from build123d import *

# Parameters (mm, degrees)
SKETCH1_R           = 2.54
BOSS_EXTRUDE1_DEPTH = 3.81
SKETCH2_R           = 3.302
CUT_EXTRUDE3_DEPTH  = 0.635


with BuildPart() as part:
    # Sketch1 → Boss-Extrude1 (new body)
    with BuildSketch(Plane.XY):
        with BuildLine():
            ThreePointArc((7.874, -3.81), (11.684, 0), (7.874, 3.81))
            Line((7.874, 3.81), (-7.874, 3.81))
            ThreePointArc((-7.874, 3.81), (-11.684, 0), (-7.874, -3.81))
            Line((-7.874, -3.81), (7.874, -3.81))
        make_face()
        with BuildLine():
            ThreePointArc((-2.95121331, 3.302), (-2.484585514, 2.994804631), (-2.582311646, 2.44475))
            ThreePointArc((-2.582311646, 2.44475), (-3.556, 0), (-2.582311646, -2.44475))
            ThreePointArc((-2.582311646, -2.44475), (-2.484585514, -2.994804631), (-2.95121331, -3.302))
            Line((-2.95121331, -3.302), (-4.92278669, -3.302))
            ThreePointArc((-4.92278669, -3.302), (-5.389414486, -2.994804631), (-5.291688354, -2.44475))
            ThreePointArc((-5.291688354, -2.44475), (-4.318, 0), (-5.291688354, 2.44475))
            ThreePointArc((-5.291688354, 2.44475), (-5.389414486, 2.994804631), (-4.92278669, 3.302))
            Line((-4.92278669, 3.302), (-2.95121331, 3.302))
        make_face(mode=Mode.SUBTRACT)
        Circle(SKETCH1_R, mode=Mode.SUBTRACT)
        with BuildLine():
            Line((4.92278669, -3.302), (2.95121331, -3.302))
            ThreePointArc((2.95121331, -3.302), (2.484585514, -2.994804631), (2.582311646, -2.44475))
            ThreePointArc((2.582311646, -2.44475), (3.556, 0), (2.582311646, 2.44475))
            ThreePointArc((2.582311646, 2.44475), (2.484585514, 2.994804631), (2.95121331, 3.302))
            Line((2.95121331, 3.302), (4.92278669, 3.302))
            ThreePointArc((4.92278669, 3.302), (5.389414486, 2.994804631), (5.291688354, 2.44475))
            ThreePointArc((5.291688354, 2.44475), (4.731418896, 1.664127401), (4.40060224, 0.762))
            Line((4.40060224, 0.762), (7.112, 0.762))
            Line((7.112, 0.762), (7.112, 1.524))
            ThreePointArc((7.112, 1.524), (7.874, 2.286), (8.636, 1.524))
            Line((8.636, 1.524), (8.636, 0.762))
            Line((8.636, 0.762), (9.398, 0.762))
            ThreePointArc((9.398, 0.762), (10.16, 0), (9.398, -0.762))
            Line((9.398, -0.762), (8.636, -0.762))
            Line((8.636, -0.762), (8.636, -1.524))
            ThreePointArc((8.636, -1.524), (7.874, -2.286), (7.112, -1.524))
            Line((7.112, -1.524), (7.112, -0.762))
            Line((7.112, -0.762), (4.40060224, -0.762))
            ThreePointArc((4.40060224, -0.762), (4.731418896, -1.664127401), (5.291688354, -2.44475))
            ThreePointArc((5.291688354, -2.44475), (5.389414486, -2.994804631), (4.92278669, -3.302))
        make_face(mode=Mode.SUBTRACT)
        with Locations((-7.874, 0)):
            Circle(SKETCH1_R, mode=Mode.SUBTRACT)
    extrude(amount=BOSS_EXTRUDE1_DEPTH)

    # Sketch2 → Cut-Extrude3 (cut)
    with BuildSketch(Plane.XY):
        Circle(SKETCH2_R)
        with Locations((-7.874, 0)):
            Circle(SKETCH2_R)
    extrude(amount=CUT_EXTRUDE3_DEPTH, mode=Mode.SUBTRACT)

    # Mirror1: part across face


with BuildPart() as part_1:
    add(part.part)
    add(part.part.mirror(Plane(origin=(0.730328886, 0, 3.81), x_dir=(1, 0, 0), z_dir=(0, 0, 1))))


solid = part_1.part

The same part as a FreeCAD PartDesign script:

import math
import FreeCAD as App
import Part
import Sketcher
from FreeCAD import Vector
Q = App.Units.Quantity

doc = App.newDocument("Part")
params = doc.addObject("Spreadsheet::Sheet", "Params")
for row, (alias, value) in enumerate([
    ("sketch1_diameter", "0.2 in"),
    ("sketch1_radius", "0.15 in"),
    ("sketch1_radius2", "0.02 in"),
    ("sketch1_radius3", "0.14 in"),
    ("sketch1_radius4", "0.03 in"),
    ("pad1_length", "0.15 in"),
    ("sketch2_diameter", "0.26 in"),
    ("pocket1_length", "0.025 in"),
], start=1):
    params.set(f"A{row}", alias)
    params.set(f"B{row}", "=" + value)
    params.setAlias(f"B{row}", alias)

body = doc.addObject("PartDesign::Body", "Body")

sketch1 = body.newObject("Sketcher::SketchObject", "Sketch")
sketch1.AttachmentSupport = (doc.getObject("XY_Plane"), [""])
sketch1.MapMode = "FlatFace"
sketch1.addGeometry([
    Part.ArcOfCircle(Part.Circle(Vector(7.9, 0, 0), Vector(0, 0, 1), 3.8), math.radians(-90), math.radians(90)),
    Part.LineSegment(Vector(7.9, 3.8, 0), Vector(-7.9, 3.8, 0)),
    Part.ArcOfCircle(Part.Circle(Vector(-7.9, 0, 0), Vector(0, 0, 1), 3.8), math.radians(90), math.radians(270)),
    Part.LineSegment(Vector(-7.9, -3.8, 0), Vector(7.9, -3.8, 0)),
    Part.Circle(Vector(-7.9, 0, 0), Vector(0, 0, 1), 2.5),
    Part.LineSegment(Vector(-4.9, 3.3, 0), Vector(-3, 3.3, 0)),
    Part.ArcOfCircle(Part.Circle(Vector(-3, 2.8, 0), Vector(0, 0, 1), 0.5), math.radians(-43), math.radians(90)),
    Part.ArcOfCircle(Part.Circle(Vector(0, 0, 0), Vector(0, 0, 1), 3.6), math.radians(137), math.radians(223)),
    Part.ArcOfCircle(Part.Circle(Vector(-3, -2.8, 0), Vector(0, 0, 1), 0.5), math.radians(-90), math.radians(43)),
    Part.LineSegment(Vector(-3, -3.3, 0), Vector(-4.9, -3.3, 0)),
    Part.ArcOfCircle(Part.Circle(Vector(-4.9, -2.8, 0), Vector(0, 0, 1), 0.5), math.radians(137), math.radians(270)),
    Part.ArcOfCircle(Part.Circle(Vector(-7.9, 0, 0), Vector(0, 0, 1), 3.6), math.radians(-43), math.radians(43)),
    Part.ArcOfCircle(Part.Circle(Vector(-4.9, 2.8, 0), Vector(0, 0, 1), 0.5), math.radians(90), math.radians(223)),
    Part.Circle(Vector(0, 0, 0), Vector(0, 0, 1), 2.5),
    Part.ArcOfCircle(Part.Circle(Vector(4.9, -2.8, 0), Vector(0, 0, 1), 0.5), math.radians(-90), math.radians(43)),
    Part.LineSegment(Vector(4.9, -3.3, 0), Vector(3, -3.3, 0)),
    Part.ArcOfCircle(Part.Circle(Vector(3, -2.8, 0), Vector(0, 0, 1), 0.5), math.radians(137), math.radians(270)),
    Part.ArcOfCircle(Part.Circle(Vector(0, 0, 0), Vector(0, 0, 1), 3.6), math.radians(-43), math.radians(43)),
    Part.ArcOfCircle(Part.Circle(Vector(3, 2.8, 0), Vector(0, 0, 1), 0.5), math.radians(90), math.radians(223)),
    Part.LineSegment(Vector(3, 3.3, 0), Vector(4.9, 3.3, 0)),
    Part.ArcOfCircle(Part.Circle(Vector(4.9, 2.8, 0), Vector(0, 0, 1), 0.5), math.radians(-43), math.radians(90)),
    Part.ArcOfCircle(Part.Circle(Vector(7.9, 0, 0), Vector(0, 0, 1), 3.6), math.radians(137), math.radians(168)),
    Part.LineSegment(Vector(4.4, 0.8, 0), Vector(7.1, 0.8, 0)),
    Part.LineSegment(Vector(7.1, 0.8, 0), Vector(7.1, 1.5, 0)),
    Part.ArcOfCircle(Part.Circle(Vector(7.9, 1.5, 0), Vector(0, 0, 1), 0.8), math.radians(0), math.radians(180)),
    Part.LineSegment(Vector(8.6, 1.5, 0), Vector(8.6, 0.8, 0)),
    Part.LineSegment(Vector(8.6, 0.8, 0), Vector(9.4, 0.8, 0)),
    Part.ArcOfCircle(Part.Circle(Vector(9.4, 0, 0), Vector(0, 0, 1), 0.8), math.radians(-90), math.radians(90)),
    Part.LineSegment(Vector(9.4, -0.8, 0), Vector(8.6, -0.8, 0)),
    Part.LineSegment(Vector(8.6, -0.8, 0), Vector(8.6, -1.5, 0)),
    Part.ArcOfCircle(Part.Circle(Vector(7.9, -1.5, 0), Vector(0, 0, 1), 0.8), math.radians(180), math.radians(360)),
    Part.LineSegment(Vector(7.1, -1.5, 0), Vector(7.1, -0.8, 0)),
    Part.LineSegment(Vector(7.1, -0.8, 0), Vector(4.4, -0.8, 0)),
    Part.ArcOfCircle(Part.Circle(Vector(7.9, 0, 0), Vector(0, 0, 1), 3.6), math.radians(-168), math.radians(-137)),
], False)
sketch1.addConstraint([
    Sketcher.Constraint("Tangent", 0, 2, 1, 1),
    Sketcher.Constraint("Tangent", 1, 2, 2, 1),
    Sketcher.Constraint("Tangent", 2, 2, 3, 1),
    Sketcher.Constraint("Tangent", 3, 2, 0, 1),
    Sketcher.Constraint("Tangent", 5, 2, 6, 2),
    Sketcher.Constraint("Tangent", 6, 1, 7, 1),
    Sketcher.Constraint("Tangent", 7, 2, 8, 2),
    Sketcher.Constraint("Tangent", 8, 1, 9, 1),
    Sketcher.Constraint("Tangent", 9, 2, 10, 2),
    Sketcher.Constraint("Tangent", 10, 1, 11, 1),
    Sketcher.Constraint("Tangent", 11, 2, 12, 2),
    Sketcher.Constraint("Tangent", 12, 1, 5, 1),
    Sketcher.Constraint("Tangent", 14, 1, 15, 1),
    Sketcher.Constraint("Tangent", 15, 2, 16, 2),
    Sketcher.Constraint("Tangent", 16, 1, 17, 1),
    Sketcher.Constraint("Tangent", 17, 2, 18, 2),
    Sketcher.Constraint("Tangent", 18, 1, 19, 1),
    Sketcher.Constraint("Tangent", 19, 2, 20, 2),
    Sketcher.Constraint("Tangent", 20, 1, 21, 1),
    Sketcher.Constraint("Coincident", 21, 2, 22, 1),
    Sketcher.Constraint("Coincident", 22, 2, 23, 1),
    Sketcher.Constraint("Tangent", 23, 2, 24, 2),
    Sketcher.Constraint("Tangent", 24, 1, 25, 1),
    Sketcher.Constraint("Coincident", 25, 2, 26, 1),
    Sketcher.Constraint("Tangent", 26, 2, 27, 2),
    Sketcher.Constraint("Tangent", 27, 1, 28, 1),
    Sketcher.Constraint("Coincident", 28, 2, 29, 1),
    Sketcher.Constraint("Tangent", 29, 2, 30, 2),
    Sketcher.Constraint("Tangent", 30, 1, 31, 1),
    Sketcher.Constraint("Coincident", 31, 2, 32, 1),
    Sketcher.Constraint("Coincident", 32, 2, 33, 1),
    Sketcher.Constraint("Tangent", 33, 2, 14, 2),
    Sketcher.Constraint("Horizontal", 1),
    Sketcher.Constraint("Horizontal", 3),
    Sketcher.Constraint("Horizontal", 5),
    Sketcher.Constraint("Horizontal", 9),
    Sketcher.Constraint("Horizontal", 15),
    Sketcher.Constraint("Horizontal", 19),
    Sketcher.Constraint("Horizontal", 22),
    Sketcher.Constraint("Vertical", 23),
    Sketcher.Constraint("Vertical", 25),
    Sketcher.Constraint("Horizontal", 26),
    Sketcher.Constraint("Horizontal", 28),
    Sketcher.Constraint("Vertical", 29),
    Sketcher.Constraint("Vertical", 31),
    Sketcher.Constraint("Horizontal", 32),
    Sketcher.Constraint("Coincident", 7, 3, -1, 1),
    Sketcher.Constraint("Coincident", 13, 3, -1, 1),
    Sketcher.Constraint("Coincident", 17, 3, -1, 1),
    Sketcher.Constraint("Coincident", 4, 3, 2, 3),
    Sketcher.Constraint("Coincident", 11, 3, 2, 3),
    Sketcher.Constraint("Coincident", 21, 3, 0, 3),
    Sketcher.Constraint("Coincident", 33, 3, 0, 3),
    Sketcher.Constraint("Equal", 6, 8),
    Sketcher.Constraint("Equal", 8, 10),
    Sketcher.Constraint("Equal", 7, 11),
    Sketcher.Constraint("Equal", 10, 12),
    Sketcher.Constraint("Equal", 4, 13),
    Sketcher.Constraint("Equal", 12, 14),
    Sketcher.Constraint("Equal", 14, 16),
    Sketcher.Constraint("Equal", 11, 17),
    Sketcher.Constraint("Equal", 16, 18),
    Sketcher.Constraint("Equal", 18, 20),
    Sketcher.Constraint("Equal", 17, 21),
    Sketcher.Constraint("Equal", 24, 27),
    Sketcher.Constraint("Equal", 27, 30),
    Sketcher.Constraint("Equal", 21, 33),
    Sketcher.Constraint("Symmetric", 0, 3, 2, 3, -1, 1),
    Sketcher.Constraint("Symmetric", 24, 3, 30, 3, -1),
    Sketcher.Constraint("PointOnObject", 27, 3, -1),
    Sketcher.Constraint("Horizontal", 10, 3, 14, 3),
    Sketcher.Constraint("Horizontal", 12, 3, 18, 3),
    Sketcher.Constraint("Horizontal", 22, 2, 25, 2),
    Sketcher.Constraint("Horizontal", 28, 2, 31, 2),
    Sketcher.Constraint("Vertical", 6, 3, 8, 3),
    Sketcher.Constraint("Vertical", 21, 3, 24, 3),
    Sketcher.Constraint("Equal", 28, 23),
    Sketcher.Constraint("Diameter", 4, Q("0.2 in")),
    Sketcher.Constraint("Radius", 0, Q("0.15 in")),
    Sketcher.Constraint("Radius", 6, Q("0.02 in")),
    Sketcher.Constraint("Radius", 7, Q("0.14 in")),
    Sketcher.Constraint("Radius", 24, Q("0.03 in")),
    Sketcher.Constraint("DistanceX", 1, 2, 1, 1, Q("0.62 in")),
    Sketcher.Constraint("DistanceX", 26, 1, 26, 2, Q("0.03 in")),
    Sketcher.Constraint("DistanceY", 21, 2, 19, 2, Q("0.1 in")),
])
sketch1.setExpression("Constraints[77]", "Params.sketch1_diameter")
sketch1.setExpression("Constraints[78]", "Params.sketch1_radius")
sketch1.setExpression("Constraints[79]", "Params.sketch1_radius2")
sketch1.setExpression("Constraints[80]", "Params.sketch1_radius3")
sketch1.setExpression("Constraints[81]", "Params.sketch1_radius4")
pad1 = body.newObject("PartDesign::Pad", "Pad")
pad1.Profile = sketch1
pad1.setExpression("Length", "Params.pad1_length")

sketch2 = body.newObject("Sketcher::SketchObject", "Sketch001")
sketch2.AttachmentSupport = (doc.getObject("XY_Plane"), [""])
sketch2.MapMode = "FlatFace"
sketch2.addGeometry([
    Part.Circle(Vector(0, 0, 0), Vector(0, 0, 1), 3.3),
    Part.Circle(Vector(-7.9, 0, 0), Vector(0, 0, 1), 3.3),
], False)
sketch2.addConstraint([
    Sketcher.Constraint("Coincident", 0, 3, -1, 1),
    Sketcher.Constraint("Equal", 0, 1),
    Sketcher.Constraint("PointOnObject", 1, 3, -1),
    Sketcher.Constraint("Diameter", 0, Q("0.26 in")),
    Sketcher.Constraint("DistanceX", 1, 3, -1, 1, Q("0.31 in")),
])
sketch2.setExpression("Constraints[3]", "Params.sketch2_diameter")
pocket1 = body.newObject("PartDesign::Pocket", "Pocket")
pocket1.Profile = sketch2
pocket1.setExpression("Length", "Params.pocket1_length")
pocket1.Reversed = True
body2 = doc.addObject("PartDesign::Body", "Body001")
doc.recompute()

body2.BaseFeature = body
doc.recompute()

mirroring = doc.addObject("Part::Mirroring", "Mirroring")
mirroring.Source = body
mirroring.Base = Vector(0.730329, 0, 3.81)
mirroring.Normal = Vector(0, 0, 1)
body3 = doc.addObject("PartDesign::Body", "Body002")
body3.BaseFeature = mirroring
boolean = body2.newObject("PartDesign::Boolean", "Boolean")
boolean.Type = "Fuse"
boolean.addObjects([body3])
doc.recompute()
mirroring.Visibility = False

doc.recompute()
